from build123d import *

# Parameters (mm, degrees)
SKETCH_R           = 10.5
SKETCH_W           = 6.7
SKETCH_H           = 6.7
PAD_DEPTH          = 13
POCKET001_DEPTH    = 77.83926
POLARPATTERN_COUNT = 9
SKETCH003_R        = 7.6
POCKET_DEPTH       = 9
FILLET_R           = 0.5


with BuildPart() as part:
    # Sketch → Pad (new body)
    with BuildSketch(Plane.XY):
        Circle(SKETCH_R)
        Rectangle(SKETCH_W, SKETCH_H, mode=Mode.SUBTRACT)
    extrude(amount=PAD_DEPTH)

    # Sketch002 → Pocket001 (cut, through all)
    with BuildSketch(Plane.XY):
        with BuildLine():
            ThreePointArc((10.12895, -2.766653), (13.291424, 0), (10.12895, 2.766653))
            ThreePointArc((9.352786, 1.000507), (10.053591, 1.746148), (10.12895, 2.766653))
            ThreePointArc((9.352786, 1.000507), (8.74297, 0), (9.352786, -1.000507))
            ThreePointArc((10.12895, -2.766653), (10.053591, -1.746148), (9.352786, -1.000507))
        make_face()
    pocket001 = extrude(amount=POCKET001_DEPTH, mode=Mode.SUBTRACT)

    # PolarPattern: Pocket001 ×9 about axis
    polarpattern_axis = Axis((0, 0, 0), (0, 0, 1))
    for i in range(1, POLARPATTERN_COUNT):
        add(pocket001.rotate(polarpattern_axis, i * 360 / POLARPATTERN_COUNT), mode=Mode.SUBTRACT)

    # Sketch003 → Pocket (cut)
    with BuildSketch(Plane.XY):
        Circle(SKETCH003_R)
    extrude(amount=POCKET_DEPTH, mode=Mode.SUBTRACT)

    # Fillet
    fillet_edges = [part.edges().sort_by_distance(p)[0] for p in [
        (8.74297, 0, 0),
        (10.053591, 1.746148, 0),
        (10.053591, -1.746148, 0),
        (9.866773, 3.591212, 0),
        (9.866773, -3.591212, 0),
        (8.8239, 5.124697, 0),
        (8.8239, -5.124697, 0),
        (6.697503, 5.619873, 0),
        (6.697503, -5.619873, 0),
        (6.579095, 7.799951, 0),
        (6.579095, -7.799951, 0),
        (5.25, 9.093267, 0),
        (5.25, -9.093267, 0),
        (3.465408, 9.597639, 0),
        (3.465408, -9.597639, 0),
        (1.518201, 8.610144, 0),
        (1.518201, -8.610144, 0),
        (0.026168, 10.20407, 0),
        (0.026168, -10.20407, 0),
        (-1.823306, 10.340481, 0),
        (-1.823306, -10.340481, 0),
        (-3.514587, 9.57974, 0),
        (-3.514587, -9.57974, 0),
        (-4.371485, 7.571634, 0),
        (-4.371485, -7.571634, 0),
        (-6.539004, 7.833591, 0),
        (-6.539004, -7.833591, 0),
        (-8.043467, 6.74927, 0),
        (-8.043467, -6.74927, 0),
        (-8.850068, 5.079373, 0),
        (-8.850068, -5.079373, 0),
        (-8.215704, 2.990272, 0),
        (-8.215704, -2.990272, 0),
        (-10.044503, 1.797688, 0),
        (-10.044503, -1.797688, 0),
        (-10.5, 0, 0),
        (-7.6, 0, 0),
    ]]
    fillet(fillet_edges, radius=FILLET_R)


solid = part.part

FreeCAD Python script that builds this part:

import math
import FreeCAD as App
import Part
import Sketcher

V = App.Vector


def edges_at(feature, points):
    """Names of the edges that pass closest to the given points."""
    edges = feature.Shape.Edges
    near = lambda p: min(range(len(edges)), key=lambda i: edges[i].distToShape(Part.Vertex(*p))[0])
    return sorted({f"Edge{near(p) + 1}" for p in points})

doc = App.newDocument("Part")
body = doc.addObject("PartDesign::Body", "Body")

# Sketch on XY plane
sketch1 = doc.addObject("Sketcher::SketchObject", "Sketch")
body.addObject(sketch1)
sketch1.AttachmentSupport = (doc.XY_Plane, [""])
sketch1.MapMode = "FlatFace"
sketch1.addGeometry(Part.Circle(V(0, 0, 0), V(0, 0, 1), 10), False)
sketch1.addGeometry(Part.LineSegment(V(3, -3, 0), V(-3, -3, 0)), False)
sketch1.addGeometry(Part.LineSegment(V(-3, -3, 0), V(-3, 3, 0)), False)
sketch1.addGeometry(Part.LineSegment(V(-3, 3, 0), V(3, 3, 0)), False)
sketch1.addGeometry(Part.LineSegment(V(3, 3, 0), V(3, -3, 0)), False)
sketch1.addConstraint(Sketcher.Constraint("Coincident", 1, 2, 2, 1))
sketch1.addConstraint(Sketcher.Constraint("Coincident", 2, 2, 3, 1))
sketch1.addConstraint(Sketcher.Constraint("Coincident", 3, 2, 4, 1))
sketch1.addConstraint(Sketcher.Constraint("Coincident", 4, 2, 1, 1))
sketch1.addConstraint(Sketcher.Constraint("Horizontal", 1))
sketch1.addConstraint(Sketcher.Constraint("Vertical", 2))
sketch1.addConstraint(Sketcher.Constraint("Horizontal", 3))
sketch1.addConstraint(Sketcher.Constraint("Vertical", 4))
sketch1.addConstraint(Sketcher.Constraint("Coincident", 0, 3, -1, 1))
sketch1.addConstraint(Sketcher.Constraint("Symmetric", 1, 2, 3, 2, -1, 1))
sketch1.addConstraint(Sketcher.Constraint("Equal", 3, 2))
sketch1.addConstraint(Sketcher.Constraint("Diameter", 0, 21.0))
sketch1.addConstraint(Sketcher.Constraint("DistanceX", 1, 2, 1, 1, 6.7))
pad1 = doc.addObject("PartDesign::Pad", "Pad")
body.addObject(pad1)
pad1.Profile = sketch1
pad1.Length = 13

# Sketch on XY plane
sketch2 = doc.addObject("Sketcher::SketchObject", "Sketch001")
body.addObject(sketch2)
sketch2.AttachmentSupport = (doc.XY_Plane, [""])
sketch2.MapMode = "FlatFace"
sketch2.addGeometry(Part.ArcOfCircle(Part.Circle(V(10.5, 0, 0), V(0, 0, 1), 2.8), math.radians(-98), math.radians(98)), False)
sketch2.addGeometry(Part.ArcOfCircle(Part.Circle(V(8.7, 2.4, 0), V(0, 0, 1), 1.5), math.radians(-63), math.radians(15)), False)
sketch2.addGeometry(Part.ArcOfCircle(Part.Circle(V(9.9, 0, 0), V(0, 0, 1), 1.1), math.radians(117), math.radians(243)), False)
sketch2.addGeometry(Part.ArcOfCircle(Part.Circle(V(8.7, -2.4, 0), V(0, 0, 1), 1.5), math.radians(-15), math.radians(63)), False)
sketch2.addConstraint(Sketcher.Constraint("Coincident", 0, 2, 1, 2))
sketch2.addConstraint(Sketcher.Constraint("Tangent", 1, 1, 2, 1))
sketch2.addConstraint(Sketcher.Constraint("Tangent", 2, 2, 3, 2))
sketch2.addConstraint(Sketcher.Constraint("Coincident", 3, 1, 0, 1))
sketch2.addConstraint(Sketcher.Constraint("Equal", 1, 3))
sketch2.addConstraint(Sketcher.Constraint("Symmetric", 1, 3, 3, 3, -1))
sketch2.addConstraint(Sketcher.Constraint("PointOnObject", 0, 3, -1))
sketch2.addConstraint(Sketcher.Constraint("DistanceX", -1, 1, 0, 3, 10.5))
sketch2.addConstraint(Sketcher.Constraint("Radius", 1, 1.532702))
sketch2.addConstraint(Sketcher.Constraint("Radius", 2, 1.125659))
sketch2.addConstraint(Sketcher.Constraint("Radius", 0, 2.791424))
sketch2.addConstraint(Sketcher.Constraint("DistanceY", -1, 1, 1, 3, 2.3628))
sketch2.addConstraint(Sketcher.Constraint("DistanceX", -1, 1, 1, 3, 8.650411))
pocket1 = doc.addObject("PartDesign::Pocket", "Pocket")
body.addObject(pocket1)
pocket1.Profile = sketch2
pocket1.Type = "ThroughAll"
pocket1.Reversed = True
doc.recompute()

polarpattern = doc.addObject("PartDesign::PolarPattern", "PolarPattern")
body.addObject(polarpattern)
polarpattern.Originals = [pocket1]
polarpattern.Axis = (doc.Z_Axis, [""])
polarpattern.Angle = 360
polarpattern.Occurrences = 9
body.Tip = polarpattern

# Sketch on XY plane
sketch3 = doc.addObject("Sketcher::SketchObject", "Sketch002")
body.addObject(sketch3)
sketch3.AttachmentSupport = (doc.XY_Plane, [""])
sketch3.MapMode = "FlatFace"
sketch3.addGeometry(Part.Circle(V(0, 0, 0), V(0, 0, 1), 8), False)
sketch3.addConstraint(Sketcher.Constraint("Coincident", 0, 3, -1, 1))
sketch3.addConstraint(Sketcher.Constraint("Diameter", 0, 15.2))
pocket2 = doc.addObject("PartDesign::Pocket", "Pocket001")
body.addObject(pocket2)
pocket2.Profile = sketch3
pocket2.Length = 9
pocket2.Reversed = True
doc.recompute()

fillet = doc.addObject("PartDesign::Fillet", "Fillet")
body.addObject(fillet)
fillet.Base = (pocket2, edges_at(pocket2, [
    (8.743, 0, 0),
    (10.054, 1.746, 0),
    (10.054, -1.746, 0),
    (9.867, 3.591, 0),
    (9.867, -3.591, 0),
    (8.824, 5.125, 0),
    (8.824, -5.125, 0),
    (6.698, 5.62, 0),
    (6.698, -5.62, 0),
    (6.579, 7.8, 0),
    (6.579, -7.8, 0),
    (5.25, 9.093, 0),
    (5.25, -9.093, 0),
    (3.465, 9.598, 0),
    (3.465, -9.598, 0),
    (1.518, 8.61, 0),
    (1.518, -8.61, 0),
    (0.026, 10.204, 0),
    (0.026, -10.204, 0),
    (-1.823, 10.34, 0),
    (-1.823, -10.34, 0),
    (-3.515, 9.58, 0),
    (-3.515, -9.58, 0),
    (-4.371, 7.572, 0),
    (-4.371, -7.572, 0),
    (-6.539, 7.834, 0),
    (-6.539, -7.834, 0),
    (-8.043, 6.749, 0),
    (-8.043, -6.749, 0),
    (-8.85, 5.079, 0),
    (-8.85, -5.079, 0),
    (-8.216, 2.99, 0),
    (-8.216, -2.99, 0),
    (-10.045, 1.798, 0),
    (-10.045, -1.798, 0),
    (-10.5, 0, 0),
    (-7.6, 0, 0),
]))
fillet.Radius = 0.5

doc.recompute()
